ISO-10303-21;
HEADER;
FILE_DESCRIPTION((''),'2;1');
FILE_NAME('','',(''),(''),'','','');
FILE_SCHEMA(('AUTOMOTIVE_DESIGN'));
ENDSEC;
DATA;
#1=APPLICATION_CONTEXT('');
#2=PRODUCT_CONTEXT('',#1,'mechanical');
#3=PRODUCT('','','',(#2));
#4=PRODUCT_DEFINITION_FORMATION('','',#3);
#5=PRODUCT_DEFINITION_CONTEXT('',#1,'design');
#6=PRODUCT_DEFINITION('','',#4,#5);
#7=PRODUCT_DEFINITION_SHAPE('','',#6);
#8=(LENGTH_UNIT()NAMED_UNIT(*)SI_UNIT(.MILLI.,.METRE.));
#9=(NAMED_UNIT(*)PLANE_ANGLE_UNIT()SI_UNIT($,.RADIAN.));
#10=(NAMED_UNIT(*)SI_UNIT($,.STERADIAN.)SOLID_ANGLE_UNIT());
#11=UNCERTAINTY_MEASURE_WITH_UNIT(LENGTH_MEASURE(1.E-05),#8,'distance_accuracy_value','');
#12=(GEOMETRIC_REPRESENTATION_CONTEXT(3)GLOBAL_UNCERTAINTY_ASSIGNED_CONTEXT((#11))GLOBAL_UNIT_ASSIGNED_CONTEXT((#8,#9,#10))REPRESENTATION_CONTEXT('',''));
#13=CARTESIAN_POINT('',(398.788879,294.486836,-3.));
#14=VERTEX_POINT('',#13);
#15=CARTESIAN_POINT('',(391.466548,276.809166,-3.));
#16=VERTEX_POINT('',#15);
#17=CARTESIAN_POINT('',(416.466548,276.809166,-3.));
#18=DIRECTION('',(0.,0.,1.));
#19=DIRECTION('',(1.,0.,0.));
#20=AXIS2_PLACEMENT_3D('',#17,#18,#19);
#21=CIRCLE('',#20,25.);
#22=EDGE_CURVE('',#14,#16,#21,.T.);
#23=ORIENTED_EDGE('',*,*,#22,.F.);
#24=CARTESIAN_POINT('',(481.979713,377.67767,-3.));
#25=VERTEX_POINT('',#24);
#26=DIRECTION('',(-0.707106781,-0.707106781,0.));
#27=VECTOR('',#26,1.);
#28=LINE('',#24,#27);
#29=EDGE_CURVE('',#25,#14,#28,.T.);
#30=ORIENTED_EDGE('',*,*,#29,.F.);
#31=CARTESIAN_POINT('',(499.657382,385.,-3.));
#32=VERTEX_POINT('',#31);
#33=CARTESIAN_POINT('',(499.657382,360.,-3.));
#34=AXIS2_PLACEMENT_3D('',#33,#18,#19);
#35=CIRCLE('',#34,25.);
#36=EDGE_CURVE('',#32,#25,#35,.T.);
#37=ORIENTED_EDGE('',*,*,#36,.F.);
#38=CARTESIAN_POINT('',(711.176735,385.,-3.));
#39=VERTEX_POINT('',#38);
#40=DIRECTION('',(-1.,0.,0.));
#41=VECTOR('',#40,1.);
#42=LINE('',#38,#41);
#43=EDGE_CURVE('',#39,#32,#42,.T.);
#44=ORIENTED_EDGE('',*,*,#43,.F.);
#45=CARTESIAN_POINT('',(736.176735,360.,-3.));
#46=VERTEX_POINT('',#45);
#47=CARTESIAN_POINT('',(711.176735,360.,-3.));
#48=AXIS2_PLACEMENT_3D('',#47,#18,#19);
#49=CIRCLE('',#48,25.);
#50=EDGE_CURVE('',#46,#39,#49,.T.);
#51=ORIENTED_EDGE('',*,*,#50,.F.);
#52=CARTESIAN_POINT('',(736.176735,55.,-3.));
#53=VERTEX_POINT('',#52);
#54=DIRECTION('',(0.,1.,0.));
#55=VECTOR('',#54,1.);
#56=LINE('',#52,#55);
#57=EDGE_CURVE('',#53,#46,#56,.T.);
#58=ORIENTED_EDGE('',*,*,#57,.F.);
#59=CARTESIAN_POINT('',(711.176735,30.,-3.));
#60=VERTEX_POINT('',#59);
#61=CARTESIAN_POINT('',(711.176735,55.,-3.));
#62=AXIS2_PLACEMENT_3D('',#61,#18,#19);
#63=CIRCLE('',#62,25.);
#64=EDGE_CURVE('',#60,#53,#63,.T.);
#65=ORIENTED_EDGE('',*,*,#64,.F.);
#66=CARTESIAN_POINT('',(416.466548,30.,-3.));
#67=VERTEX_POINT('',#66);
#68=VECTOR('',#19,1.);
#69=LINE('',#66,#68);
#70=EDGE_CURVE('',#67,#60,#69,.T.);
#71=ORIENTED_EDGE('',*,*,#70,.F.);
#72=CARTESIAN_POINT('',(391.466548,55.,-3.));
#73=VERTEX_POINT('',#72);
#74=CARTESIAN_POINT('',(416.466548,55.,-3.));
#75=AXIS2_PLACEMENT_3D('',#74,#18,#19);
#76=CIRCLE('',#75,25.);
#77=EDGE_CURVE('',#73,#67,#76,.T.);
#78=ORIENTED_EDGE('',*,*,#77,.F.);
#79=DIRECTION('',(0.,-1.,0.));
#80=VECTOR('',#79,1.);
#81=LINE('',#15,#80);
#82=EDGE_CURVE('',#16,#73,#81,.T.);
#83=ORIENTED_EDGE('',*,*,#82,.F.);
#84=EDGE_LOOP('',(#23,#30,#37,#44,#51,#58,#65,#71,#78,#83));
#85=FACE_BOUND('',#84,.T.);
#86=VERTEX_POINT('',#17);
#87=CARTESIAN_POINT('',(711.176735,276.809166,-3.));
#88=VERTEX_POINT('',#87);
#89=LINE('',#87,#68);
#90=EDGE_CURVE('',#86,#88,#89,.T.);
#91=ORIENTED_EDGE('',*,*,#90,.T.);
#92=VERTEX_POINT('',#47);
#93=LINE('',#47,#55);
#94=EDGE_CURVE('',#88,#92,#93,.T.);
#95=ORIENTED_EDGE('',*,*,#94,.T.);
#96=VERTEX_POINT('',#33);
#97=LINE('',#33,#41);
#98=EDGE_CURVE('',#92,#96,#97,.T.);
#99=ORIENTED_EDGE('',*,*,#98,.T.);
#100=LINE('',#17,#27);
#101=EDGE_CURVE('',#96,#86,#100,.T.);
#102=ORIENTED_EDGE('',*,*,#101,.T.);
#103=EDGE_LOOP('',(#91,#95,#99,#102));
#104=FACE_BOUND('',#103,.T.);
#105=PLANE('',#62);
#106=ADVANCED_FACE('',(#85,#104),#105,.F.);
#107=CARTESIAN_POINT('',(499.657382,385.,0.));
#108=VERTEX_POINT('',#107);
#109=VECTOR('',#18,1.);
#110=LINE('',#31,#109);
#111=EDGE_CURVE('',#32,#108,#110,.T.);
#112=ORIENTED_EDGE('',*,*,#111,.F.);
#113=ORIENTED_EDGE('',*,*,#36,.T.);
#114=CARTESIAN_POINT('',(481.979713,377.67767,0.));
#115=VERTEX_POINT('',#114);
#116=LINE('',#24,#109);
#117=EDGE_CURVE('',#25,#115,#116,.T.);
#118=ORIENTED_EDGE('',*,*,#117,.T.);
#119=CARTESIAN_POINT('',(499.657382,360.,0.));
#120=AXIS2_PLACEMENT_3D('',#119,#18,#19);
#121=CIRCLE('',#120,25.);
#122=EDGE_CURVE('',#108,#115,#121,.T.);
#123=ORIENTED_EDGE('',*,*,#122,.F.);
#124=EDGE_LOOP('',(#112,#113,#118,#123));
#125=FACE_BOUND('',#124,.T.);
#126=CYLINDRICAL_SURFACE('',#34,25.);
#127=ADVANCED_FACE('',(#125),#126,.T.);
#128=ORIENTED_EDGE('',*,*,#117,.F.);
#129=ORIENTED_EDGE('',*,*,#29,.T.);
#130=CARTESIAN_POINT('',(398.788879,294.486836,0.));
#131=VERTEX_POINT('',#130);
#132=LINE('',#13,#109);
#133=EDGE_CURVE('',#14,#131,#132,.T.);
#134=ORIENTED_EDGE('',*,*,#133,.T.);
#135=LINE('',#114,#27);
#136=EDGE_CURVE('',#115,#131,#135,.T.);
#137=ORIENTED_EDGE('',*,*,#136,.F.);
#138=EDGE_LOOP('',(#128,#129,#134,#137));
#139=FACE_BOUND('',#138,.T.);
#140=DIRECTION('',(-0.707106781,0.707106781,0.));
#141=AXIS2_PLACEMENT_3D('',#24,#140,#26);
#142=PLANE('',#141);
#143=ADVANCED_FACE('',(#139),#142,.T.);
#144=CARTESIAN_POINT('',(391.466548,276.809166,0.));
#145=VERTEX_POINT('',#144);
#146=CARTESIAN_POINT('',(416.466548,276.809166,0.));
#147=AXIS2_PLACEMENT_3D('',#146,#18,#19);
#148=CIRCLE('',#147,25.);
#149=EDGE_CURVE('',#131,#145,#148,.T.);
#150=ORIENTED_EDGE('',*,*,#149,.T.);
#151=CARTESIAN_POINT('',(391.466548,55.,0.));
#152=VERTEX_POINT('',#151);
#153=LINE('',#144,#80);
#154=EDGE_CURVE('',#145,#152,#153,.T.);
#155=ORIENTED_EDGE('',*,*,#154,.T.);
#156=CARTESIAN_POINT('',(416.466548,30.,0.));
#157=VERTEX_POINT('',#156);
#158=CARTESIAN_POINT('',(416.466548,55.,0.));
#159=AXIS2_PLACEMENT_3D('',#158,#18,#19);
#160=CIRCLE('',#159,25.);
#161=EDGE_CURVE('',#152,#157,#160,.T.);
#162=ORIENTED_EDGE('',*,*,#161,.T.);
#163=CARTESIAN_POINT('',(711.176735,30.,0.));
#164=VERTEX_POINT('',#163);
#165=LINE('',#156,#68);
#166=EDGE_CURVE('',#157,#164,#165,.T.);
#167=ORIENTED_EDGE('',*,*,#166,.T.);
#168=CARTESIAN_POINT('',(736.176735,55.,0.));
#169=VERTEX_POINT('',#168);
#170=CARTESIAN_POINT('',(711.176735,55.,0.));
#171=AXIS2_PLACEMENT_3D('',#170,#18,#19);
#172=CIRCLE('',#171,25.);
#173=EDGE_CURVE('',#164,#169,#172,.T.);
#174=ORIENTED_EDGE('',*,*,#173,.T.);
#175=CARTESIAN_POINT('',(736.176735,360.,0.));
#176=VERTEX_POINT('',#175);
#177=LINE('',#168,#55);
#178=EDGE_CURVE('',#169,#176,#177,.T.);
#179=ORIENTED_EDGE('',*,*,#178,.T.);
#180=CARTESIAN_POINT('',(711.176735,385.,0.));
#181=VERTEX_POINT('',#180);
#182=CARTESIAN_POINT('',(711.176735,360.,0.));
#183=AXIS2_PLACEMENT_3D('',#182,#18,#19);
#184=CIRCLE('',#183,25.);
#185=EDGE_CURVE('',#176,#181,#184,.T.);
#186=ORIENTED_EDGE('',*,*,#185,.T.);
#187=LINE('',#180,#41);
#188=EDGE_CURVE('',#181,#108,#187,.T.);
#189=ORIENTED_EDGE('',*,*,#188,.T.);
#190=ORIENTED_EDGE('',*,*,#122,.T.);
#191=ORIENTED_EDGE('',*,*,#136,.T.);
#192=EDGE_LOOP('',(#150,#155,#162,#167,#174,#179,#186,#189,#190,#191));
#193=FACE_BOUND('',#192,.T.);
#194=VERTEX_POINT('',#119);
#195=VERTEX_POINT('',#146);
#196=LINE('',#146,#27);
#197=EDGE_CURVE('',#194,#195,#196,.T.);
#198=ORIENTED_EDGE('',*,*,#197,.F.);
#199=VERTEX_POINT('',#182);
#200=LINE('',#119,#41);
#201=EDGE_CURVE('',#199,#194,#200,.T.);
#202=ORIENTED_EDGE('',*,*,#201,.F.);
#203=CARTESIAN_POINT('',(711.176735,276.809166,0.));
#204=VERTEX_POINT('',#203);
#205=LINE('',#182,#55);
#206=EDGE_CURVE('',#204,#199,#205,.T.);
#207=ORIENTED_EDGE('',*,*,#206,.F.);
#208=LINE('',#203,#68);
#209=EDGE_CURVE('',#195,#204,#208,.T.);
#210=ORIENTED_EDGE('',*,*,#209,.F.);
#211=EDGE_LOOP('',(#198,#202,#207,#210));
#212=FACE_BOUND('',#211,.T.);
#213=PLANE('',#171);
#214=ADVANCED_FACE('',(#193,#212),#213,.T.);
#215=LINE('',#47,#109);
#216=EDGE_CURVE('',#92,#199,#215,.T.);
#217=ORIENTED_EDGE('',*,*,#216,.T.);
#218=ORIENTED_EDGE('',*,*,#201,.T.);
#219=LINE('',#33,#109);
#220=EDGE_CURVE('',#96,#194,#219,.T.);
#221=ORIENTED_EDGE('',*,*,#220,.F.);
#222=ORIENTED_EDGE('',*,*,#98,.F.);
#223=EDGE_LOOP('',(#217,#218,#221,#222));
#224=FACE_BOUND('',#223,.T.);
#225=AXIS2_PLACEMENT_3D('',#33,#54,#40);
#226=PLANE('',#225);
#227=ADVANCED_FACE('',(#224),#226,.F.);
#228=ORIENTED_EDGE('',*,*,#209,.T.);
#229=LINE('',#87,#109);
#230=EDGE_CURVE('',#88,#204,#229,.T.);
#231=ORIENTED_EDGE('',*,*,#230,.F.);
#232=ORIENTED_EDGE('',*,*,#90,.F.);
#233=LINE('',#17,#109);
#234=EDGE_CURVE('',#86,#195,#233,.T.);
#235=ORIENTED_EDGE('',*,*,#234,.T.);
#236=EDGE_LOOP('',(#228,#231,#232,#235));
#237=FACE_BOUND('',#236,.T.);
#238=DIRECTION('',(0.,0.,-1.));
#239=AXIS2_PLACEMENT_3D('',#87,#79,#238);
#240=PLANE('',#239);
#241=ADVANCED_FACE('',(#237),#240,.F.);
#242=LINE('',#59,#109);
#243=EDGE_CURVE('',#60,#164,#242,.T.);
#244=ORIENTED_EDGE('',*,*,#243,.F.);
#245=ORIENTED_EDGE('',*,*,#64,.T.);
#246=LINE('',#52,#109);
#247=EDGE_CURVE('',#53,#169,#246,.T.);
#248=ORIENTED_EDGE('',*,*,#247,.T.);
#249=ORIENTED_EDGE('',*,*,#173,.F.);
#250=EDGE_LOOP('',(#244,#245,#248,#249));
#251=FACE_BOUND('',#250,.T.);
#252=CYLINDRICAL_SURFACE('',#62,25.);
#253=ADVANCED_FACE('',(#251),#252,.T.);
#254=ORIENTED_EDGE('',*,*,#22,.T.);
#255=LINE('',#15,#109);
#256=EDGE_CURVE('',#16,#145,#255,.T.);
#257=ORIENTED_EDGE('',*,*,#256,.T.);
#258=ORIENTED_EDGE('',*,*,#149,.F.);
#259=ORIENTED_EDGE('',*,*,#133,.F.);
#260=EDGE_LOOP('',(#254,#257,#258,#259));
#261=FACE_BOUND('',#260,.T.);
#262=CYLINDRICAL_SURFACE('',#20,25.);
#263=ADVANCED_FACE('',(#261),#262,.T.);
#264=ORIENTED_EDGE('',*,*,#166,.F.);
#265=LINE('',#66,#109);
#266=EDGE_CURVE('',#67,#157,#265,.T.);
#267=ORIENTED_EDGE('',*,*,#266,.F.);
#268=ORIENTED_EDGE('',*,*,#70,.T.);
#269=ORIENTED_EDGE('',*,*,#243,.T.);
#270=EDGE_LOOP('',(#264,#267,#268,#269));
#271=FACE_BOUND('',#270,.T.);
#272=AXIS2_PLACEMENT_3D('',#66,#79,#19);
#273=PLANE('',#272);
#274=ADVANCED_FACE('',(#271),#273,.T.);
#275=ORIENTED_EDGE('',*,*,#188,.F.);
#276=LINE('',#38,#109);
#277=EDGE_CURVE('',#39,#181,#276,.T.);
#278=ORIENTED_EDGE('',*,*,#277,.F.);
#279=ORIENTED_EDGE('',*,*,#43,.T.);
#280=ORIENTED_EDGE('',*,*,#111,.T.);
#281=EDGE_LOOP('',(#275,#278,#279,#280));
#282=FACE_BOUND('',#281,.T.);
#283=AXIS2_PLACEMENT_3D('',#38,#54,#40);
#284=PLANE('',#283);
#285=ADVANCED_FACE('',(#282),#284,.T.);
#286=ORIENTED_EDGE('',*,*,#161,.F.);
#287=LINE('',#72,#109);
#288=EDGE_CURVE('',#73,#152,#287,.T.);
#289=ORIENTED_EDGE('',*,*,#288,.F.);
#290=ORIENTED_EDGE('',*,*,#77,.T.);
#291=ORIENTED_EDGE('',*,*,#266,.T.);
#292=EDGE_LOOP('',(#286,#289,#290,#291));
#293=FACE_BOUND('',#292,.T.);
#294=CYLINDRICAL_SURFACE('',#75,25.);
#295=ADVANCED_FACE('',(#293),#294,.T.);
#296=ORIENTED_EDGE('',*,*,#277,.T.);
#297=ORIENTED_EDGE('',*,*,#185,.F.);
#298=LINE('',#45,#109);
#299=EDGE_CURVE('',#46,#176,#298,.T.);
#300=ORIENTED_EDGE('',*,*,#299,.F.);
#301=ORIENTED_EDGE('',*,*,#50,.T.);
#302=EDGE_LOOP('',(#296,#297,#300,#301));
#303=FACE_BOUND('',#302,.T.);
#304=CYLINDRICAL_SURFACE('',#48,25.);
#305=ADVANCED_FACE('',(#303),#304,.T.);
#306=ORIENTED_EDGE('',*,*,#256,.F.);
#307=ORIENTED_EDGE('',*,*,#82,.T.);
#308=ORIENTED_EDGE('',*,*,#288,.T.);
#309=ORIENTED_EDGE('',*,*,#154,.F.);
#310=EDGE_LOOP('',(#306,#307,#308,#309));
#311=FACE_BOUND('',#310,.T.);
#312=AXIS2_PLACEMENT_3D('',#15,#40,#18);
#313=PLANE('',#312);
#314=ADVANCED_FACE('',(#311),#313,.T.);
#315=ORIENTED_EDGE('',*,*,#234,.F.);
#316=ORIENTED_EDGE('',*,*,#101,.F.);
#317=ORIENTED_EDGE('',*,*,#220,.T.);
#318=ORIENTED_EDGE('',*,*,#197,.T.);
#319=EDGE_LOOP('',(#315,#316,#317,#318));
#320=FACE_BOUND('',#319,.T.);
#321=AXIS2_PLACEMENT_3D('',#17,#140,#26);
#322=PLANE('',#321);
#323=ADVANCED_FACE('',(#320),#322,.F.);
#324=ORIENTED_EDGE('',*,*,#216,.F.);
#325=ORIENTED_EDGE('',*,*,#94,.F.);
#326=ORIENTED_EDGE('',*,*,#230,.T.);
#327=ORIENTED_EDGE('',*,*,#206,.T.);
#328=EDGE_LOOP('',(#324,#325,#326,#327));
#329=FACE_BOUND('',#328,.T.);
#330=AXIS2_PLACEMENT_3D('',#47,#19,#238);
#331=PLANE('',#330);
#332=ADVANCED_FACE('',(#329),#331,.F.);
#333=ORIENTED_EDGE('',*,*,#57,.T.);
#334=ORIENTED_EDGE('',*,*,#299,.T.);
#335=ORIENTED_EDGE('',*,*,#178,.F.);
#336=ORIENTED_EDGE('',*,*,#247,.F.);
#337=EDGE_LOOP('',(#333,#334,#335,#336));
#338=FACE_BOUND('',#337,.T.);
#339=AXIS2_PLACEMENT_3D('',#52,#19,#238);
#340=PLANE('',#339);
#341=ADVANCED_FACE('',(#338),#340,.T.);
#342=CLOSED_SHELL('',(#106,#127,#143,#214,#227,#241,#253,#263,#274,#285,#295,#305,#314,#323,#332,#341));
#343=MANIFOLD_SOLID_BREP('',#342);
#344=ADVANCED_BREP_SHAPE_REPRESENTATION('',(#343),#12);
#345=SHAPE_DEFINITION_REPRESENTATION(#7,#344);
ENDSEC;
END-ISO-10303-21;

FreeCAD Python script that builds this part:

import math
import FreeCAD as App
import Part
import Sketcher
Q = App.Units.Quantity


def add_polygon(sketch, points):
    """Adds a closed chain of lines whose ends are joined by coincident constraints."""
    first, n = sketch.GeometryCount, len(points)
    for a, b in zip(points, points[1:] + points[:1]):
        sketch.addGeometry(Part.LineSegment(App.Vector(*a, 0), App.Vector(*b, 0)), False)
    for i in range(n):
        sketch.addConstraint(Sketcher.Constraint("Coincident", first + i, 2, first + (i + 1) % n, 1))

doc = App.newDocument("Part")
params = doc.addObject("Spreadsheet::Sheet", "Params")
for row, (alias, value) in enumerate([
    ("sketch1_radius", "25 mm"),
    ("sketch1_height", "305 mm"),
    ("pad1_length", "3 mm"),
], start=1):
    params.set(f"A{row}", alias)
    params.set(f"B{row}", "=" + value)
    params.setAlias(f"B{row}", alias)

body = doc.addObject("PartDesign::Body", "Body")

sketch1 = doc.addObject("Sketcher::SketchObject", "Sketch")
body.addObject(sketch1)
sketch1.AttachmentSupport = (doc.XY_Plane, [""])
sketch1.MapMode = "FlatFace"
sketch1.addGeometry(Part.LineSegment(App.Vector(711, 385, 0), App.Vector(500, 385, 0)), False)
sketch1.addGeometry(Part.ArcOfCircle(Part.Circle(App.Vector(500, 360, 0), App.Vector(0, 0, 1), 25), math.radians(90), math.radians(135)), False)
sketch1.addGeometry(Part.LineSegment(App.Vector(482, 378, 0), App.Vector(399, 294, 0)), False)
sketch1.addGeometry(Part.ArcOfCircle(Part.Circle(App.Vector(416, 277, 0), App.Vector(0, 0, 1), 25), math.radians(135), math.radians(180)), False)
sketch1.addGeometry(Part.LineSegment(App.Vector(391, 277, 0), App.Vector(391, 55, 0)), False)
sketch1.addGeometry(Part.ArcOfCircle(Part.Circle(App.Vector(416, 55, 0), App.Vector(0, 0, 1), 25), math.radians(-180), math.radians(-90)), False)
sketch1.addGeometry(Part.LineSegment(App.Vector(416, 30, 0), App.Vector(711, 30, 0)), False)
sketch1.addGeometry(Part.ArcOfCircle(Part.Circle(App.Vector(711, 55, 0), App.Vector(0, 0, 1), 25), math.radians(-90), math.radians(0)), False)
sketch1.addGeometry(Part.LineSegment(App.Vector(736, 55, 0), App.Vector(736, 360, 0)), False)
sketch1.addGeometry(Part.ArcOfCircle(Part.Circle(App.Vector(711, 360, 0), App.Vector(0, 0, 1), 25), math.radians(0), math.radians(90)), False)
add_polygon(sketch1, [(711, 277), (416, 277), (500, 360), (711, 360)])
sketch1.addConstraint(Sketcher.Constraint("Tangent", 0, 2, 1, 1))
sketch1.addConstraint(Sketcher.Constraint("Tangent", 1, 2, 2, 1))
sketch1.addConstraint(Sketcher.Constraint("Tangent", 2, 2, 3, 1))
sketch1.addConstraint(Sketcher.Constraint("Tangent", 3, 2, 4, 1))
sketch1.addConstraint(Sketcher.Constraint("Tangent", 4, 2, 5, 1))
sketch1.addConstraint(Sketcher.Constraint("Tangent", 5, 2, 6, 1))
sketch1.addConstraint(Sketcher.Constraint("Tangent", 6, 2, 7, 1))
sketch1.addConstraint(Sketcher.Constraint("Tangent", 7, 2, 8, 1))
sketch1.addConstraint(Sketcher.Constraint("Tangent", 8, 2, 9, 1))
sketch1.addConstraint(Sketcher.Constraint("Tangent", 9, 2, 0, 1))
sketch1.addConstraint(Sketcher.Constraint("Horizontal", 0))
sketch1.addConstraint(Sketcher.Constraint("Vertical", 4))
sketch1.addConstraint(Sketcher.Constraint("Horizontal", 6))
sketch1.addConstraint(Sketcher.Constraint("Vertical", 8))
sketch1.addConstraint(Sketcher.Constraint("Horizontal", 10))
sketch1.addConstraint(Sketcher.Constraint("Horizontal", 12))
sketch1.addConstraint(Sketcher.Constraint("Vertical", 13))
sketch1.addConstraint(Sketcher.Constraint("Coincident", 10, 2, 3, 3))
sketch1.addConstraint(Sketcher.Constraint("Coincident", 11, 2, 1, 3))
sketch1.addConstraint(Sketcher.Constraint("Coincident", 12, 2, 9, 3))
sketch1.addConstraint(Sketcher.Constraint("Equal", 1, 3))
sketch1.addConstraint(Sketcher.Constraint("Equal", 3, 5))
sketch1.addConstraint(Sketcher.Constraint("Equal", 5, 7))
sketch1.addConstraint(Sketcher.Constraint("Radius", 1, 25.0))
sketch1.addConstraint(Sketcher.Constraint("DistanceY", 8, 1, 8, 2, 305.0))
sketch1.addConstraint(Sketcher.Constraint("Angle", 2, Q("-135 deg")))
sketch1.addConstraint(Sketcher.Constraint("DistanceY", -1, 1, 1, 3, 360.0))
sketch1.addConstraint(Sketcher.Constraint("DistanceX", 0, 2, 0, 1, 211.519352))
sketch1.addConstraint(Sketcher.Constraint("DistanceX", 6, 1, 6, 2, 294.710186))
sketch1.addConstraint(Sketcher.Constraint("DistanceX", -1, 1, 3, 3, 416.466548))
sketch1.setExpression("Constraints[27]", "Params.sketch1_radius")
sketch1.setExpression("Constraints[28]", "Params.sketch1_height")
pad1 = doc.addObject("PartDesign::Pad", "Pad")
body.addObject(pad1)
pad1.Profile = sketch1
pad1.setExpression("Length", "Params.pad1_length")
pad1.Reversed = True

doc.recompute()
